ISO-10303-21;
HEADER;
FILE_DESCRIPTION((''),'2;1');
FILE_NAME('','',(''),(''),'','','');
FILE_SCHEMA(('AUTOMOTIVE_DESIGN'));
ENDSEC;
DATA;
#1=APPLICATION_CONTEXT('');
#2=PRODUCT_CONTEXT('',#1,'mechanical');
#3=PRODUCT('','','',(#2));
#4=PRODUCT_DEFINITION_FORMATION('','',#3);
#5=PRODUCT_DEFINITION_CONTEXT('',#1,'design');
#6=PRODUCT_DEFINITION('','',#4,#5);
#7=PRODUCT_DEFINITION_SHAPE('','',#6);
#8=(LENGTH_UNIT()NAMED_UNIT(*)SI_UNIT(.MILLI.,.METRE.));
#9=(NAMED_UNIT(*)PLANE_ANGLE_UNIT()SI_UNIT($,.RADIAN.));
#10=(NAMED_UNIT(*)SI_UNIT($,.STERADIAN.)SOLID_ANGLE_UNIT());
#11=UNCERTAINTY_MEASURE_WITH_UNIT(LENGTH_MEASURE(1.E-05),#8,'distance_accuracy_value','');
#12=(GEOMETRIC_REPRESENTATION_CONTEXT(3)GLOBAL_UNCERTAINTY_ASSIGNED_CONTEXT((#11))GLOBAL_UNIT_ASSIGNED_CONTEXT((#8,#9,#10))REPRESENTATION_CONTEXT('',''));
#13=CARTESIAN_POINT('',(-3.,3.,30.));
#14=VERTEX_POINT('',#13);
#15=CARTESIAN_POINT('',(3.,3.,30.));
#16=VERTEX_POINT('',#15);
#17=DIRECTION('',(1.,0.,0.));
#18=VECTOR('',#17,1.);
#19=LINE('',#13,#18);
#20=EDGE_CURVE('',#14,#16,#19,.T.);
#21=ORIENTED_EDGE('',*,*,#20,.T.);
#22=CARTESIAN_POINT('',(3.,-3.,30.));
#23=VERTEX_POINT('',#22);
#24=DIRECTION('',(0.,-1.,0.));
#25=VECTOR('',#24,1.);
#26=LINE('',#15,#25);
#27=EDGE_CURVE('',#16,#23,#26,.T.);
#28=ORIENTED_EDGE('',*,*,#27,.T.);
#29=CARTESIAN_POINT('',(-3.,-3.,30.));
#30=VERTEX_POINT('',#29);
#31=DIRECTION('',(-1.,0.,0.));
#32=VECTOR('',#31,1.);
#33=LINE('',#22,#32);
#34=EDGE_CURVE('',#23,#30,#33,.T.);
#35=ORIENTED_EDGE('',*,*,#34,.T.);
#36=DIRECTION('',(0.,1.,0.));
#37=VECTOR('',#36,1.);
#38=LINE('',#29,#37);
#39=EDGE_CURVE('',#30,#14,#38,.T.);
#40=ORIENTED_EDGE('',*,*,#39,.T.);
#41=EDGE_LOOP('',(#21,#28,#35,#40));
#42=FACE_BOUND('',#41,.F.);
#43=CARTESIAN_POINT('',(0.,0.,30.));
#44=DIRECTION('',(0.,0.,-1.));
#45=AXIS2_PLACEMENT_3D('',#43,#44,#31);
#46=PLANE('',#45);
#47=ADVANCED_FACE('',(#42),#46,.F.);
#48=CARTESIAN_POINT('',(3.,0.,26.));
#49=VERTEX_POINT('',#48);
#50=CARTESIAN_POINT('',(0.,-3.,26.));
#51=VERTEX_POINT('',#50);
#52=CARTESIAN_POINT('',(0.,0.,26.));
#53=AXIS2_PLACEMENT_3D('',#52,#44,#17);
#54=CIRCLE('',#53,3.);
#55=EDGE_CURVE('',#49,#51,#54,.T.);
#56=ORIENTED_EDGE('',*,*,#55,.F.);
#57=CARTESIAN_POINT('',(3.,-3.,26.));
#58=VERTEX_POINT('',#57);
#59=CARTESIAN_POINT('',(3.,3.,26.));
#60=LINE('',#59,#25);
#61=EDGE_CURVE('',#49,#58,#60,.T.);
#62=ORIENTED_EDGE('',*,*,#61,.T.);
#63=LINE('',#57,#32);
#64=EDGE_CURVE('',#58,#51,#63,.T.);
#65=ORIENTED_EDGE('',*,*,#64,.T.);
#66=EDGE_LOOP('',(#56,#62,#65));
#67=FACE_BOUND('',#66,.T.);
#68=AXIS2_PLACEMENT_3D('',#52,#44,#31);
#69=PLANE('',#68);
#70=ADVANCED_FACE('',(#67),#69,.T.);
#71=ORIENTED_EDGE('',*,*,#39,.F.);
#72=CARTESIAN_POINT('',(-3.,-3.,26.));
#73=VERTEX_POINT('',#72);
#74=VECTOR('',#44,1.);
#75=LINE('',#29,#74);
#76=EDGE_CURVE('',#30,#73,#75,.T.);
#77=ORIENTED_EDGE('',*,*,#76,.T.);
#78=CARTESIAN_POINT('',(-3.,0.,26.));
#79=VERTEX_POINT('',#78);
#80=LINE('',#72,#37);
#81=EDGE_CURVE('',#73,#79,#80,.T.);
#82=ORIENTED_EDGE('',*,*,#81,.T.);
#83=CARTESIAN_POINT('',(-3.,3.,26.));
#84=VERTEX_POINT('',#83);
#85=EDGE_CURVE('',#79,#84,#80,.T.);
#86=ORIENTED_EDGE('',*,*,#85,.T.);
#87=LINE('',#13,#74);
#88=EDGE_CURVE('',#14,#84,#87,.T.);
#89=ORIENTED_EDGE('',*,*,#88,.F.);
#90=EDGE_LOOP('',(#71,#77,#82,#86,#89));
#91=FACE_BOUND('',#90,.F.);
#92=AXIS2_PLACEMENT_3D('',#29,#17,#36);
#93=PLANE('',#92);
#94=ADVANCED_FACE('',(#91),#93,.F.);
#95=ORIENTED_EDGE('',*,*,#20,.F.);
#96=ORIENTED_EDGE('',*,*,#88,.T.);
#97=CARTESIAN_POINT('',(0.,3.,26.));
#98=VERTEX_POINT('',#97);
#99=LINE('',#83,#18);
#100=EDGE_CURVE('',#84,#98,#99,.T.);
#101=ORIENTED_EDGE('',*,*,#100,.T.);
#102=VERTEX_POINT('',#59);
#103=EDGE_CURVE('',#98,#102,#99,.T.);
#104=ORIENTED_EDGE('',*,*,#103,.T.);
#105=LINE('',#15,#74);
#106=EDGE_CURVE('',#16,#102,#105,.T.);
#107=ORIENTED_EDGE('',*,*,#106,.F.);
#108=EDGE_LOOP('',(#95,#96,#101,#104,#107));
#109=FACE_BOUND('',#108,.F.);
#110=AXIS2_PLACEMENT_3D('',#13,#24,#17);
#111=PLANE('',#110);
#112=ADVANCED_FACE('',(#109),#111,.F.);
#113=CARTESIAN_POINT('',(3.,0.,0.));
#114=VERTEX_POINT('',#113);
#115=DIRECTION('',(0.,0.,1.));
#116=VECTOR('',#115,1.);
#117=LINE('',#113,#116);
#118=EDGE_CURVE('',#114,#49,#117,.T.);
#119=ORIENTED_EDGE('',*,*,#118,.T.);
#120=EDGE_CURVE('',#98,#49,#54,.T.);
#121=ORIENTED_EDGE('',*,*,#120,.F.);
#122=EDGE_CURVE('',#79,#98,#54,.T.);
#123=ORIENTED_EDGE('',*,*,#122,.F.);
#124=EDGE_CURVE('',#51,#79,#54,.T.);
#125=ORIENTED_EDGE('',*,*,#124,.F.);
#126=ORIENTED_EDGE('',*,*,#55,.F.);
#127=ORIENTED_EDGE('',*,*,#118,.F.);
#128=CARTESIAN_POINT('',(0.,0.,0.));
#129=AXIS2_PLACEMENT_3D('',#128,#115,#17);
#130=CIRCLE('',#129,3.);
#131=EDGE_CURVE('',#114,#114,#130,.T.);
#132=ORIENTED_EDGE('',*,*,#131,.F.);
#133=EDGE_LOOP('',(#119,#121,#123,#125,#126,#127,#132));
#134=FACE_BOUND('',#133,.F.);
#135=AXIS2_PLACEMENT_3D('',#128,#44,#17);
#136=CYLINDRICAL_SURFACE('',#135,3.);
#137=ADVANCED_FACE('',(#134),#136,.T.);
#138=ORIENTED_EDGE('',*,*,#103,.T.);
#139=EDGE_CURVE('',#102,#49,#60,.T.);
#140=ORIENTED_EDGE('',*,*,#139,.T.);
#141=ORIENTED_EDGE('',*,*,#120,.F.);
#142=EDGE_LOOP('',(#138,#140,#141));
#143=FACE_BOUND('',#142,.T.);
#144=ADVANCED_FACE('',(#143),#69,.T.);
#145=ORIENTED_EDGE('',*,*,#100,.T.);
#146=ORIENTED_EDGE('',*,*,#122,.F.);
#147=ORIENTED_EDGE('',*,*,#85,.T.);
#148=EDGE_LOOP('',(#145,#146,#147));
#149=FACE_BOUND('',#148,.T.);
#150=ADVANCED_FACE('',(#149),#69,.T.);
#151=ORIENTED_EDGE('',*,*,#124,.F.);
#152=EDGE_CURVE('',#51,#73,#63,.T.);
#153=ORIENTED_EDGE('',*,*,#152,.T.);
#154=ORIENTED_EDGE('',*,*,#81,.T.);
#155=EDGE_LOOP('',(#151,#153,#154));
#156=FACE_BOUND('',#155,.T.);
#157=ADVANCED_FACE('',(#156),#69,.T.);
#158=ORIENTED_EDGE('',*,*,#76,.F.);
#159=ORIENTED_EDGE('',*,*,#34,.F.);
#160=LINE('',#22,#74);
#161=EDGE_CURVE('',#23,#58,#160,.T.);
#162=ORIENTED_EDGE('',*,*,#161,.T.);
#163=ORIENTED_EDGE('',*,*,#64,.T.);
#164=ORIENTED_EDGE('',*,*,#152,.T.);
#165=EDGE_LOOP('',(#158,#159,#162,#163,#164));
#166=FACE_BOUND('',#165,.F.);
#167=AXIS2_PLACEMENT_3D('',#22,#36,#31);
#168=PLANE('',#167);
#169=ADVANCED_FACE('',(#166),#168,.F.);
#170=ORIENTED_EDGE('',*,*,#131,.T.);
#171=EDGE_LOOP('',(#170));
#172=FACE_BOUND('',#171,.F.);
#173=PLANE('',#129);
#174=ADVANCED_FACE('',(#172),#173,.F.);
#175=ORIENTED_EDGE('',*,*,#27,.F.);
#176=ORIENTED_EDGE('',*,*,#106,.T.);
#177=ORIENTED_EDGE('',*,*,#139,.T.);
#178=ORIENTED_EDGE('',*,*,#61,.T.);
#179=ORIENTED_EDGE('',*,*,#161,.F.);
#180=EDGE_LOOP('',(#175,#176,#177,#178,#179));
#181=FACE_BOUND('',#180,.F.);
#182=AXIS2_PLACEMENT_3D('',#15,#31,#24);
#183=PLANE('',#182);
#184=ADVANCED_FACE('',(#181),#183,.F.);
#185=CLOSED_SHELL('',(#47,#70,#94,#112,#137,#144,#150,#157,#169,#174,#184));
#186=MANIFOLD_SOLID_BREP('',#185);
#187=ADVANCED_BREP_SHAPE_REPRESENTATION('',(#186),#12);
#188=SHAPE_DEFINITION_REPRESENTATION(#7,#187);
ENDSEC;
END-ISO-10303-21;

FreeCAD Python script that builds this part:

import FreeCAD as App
import Part
import Sketcher

V = App.Vector


def add_polygon(sketch, points):
    """Adds a closed chain of lines whose ends are joined by coincident constraints."""
    first, n = sketch.GeometryCount, len(points)
    for a, b in zip(points, points[1:] + points[:1]):
        sketch.addGeometry(Part.LineSegment(App.Vector(*a, 0), App.Vector(*b, 0)), False)
    for i in range(n):
        sketch.addConstraint(Sketcher.Constraint("Coincident", first + i, 2, first + (i + 1) % n, 1))

doc = App.newDocument("Part")
body = doc.addObject("PartDesign::Body", "Body")

sketch1 = body.newObject("Sketcher::SketchObject", "Sketch")
sketch1.AttachmentSupport = (doc.getObject("XY_Plane"), [""])
sketch1.MapMode = "FlatFace"
sketch1.addGeometry(Part.Circle(V(0, 0, 0), V(0, 0, 1), 3), False)
sketch1.addConstraint([
    Sketcher.Constraint("Coincident", 0, 3, -1, 1),
    Sketcher.Constraint("Diameter", 0, 6.0),
])
pad1 = body.newObject("PartDesign::Pad", "Pad")
pad1.Profile = sketch1
pad1.Length = 30

sketch2 = body.newObject("Sketcher::SketchObject", "Sketch001")
sketch2.AttachmentSupport = (doc.getObject("XY_Plane"), [""])
sketch2.MapMode = "FlatFace"
sketch2.AttachmentOffset = App.Placement(V(0, 0, 30), App.Rotation())
add_polygon(sketch2, [(-3, -3), (3, -3), (3, 3), (-3, 3)])
sketch2.addConstraint([
    Sketcher.Constraint("Horizontal", 0),
    Sketcher.Constraint("Vertical", 1),
    Sketcher.Constraint("Horizontal", 2),
    Sketcher.Constraint("Vertical", 3),
    Sketcher.Constraint("Symmetric", 0, 2, 2, 2, -1, 1),
    Sketcher.Constraint("Equal", 2, 1),
    Sketcher.Constraint("DistanceX", 0, 1, 0, 2, 6.0),
])
pad2 = body.newObject("PartDesign::Pad", "Pad001")
pad2.Profile = sketch2
pad2.Length = 4
pad2.Reversed = True

doc.recompute()
